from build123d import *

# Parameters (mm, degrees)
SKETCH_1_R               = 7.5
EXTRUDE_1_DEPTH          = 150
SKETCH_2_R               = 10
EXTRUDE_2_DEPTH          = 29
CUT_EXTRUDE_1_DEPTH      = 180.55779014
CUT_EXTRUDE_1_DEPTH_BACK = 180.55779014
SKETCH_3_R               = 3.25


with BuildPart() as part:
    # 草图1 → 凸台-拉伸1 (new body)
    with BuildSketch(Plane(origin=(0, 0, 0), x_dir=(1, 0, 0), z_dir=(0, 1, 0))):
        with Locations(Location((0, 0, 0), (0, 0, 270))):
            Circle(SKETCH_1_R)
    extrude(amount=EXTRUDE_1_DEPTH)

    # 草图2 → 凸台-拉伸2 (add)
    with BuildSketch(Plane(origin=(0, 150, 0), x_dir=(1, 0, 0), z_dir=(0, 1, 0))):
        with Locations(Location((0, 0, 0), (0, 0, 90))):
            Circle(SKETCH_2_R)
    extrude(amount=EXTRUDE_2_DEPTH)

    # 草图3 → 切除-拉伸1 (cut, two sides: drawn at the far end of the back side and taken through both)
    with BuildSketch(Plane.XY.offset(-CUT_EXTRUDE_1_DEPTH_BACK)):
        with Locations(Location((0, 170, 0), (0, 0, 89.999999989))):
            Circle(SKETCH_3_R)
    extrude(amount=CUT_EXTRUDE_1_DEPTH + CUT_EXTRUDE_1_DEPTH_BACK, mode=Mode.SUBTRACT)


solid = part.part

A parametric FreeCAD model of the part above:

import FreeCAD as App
import Part
import Sketcher

V = App.Vector

doc = App.newDocument("Part")
params = doc.addObject("Spreadsheet::Sheet", "Params")
for row, (alias, value) in enumerate([
    ("sketch1_diameter", "15 mm"),
    ("pad1_length", "150 mm"),
    ("sketch2_diameter", "20 mm"),
    ("pad2_length", "29 mm"),
    ("sketch3_diameter", "6.5 mm"),
], start=1):
    params.set(f"A{row}", alias)
    params.set(f"B{row}", "=" + value)
    params.setAlias(f"B{row}", alias)

body = doc.addObject("PartDesign::Body", "Body")

# Sketch on XZ plane
sketch1 = doc.addObject("Sketcher::SketchObject", "Sketch")
body.addObject(sketch1)
sketch1.AttachmentSupport = (doc.XZ_Plane, [""])
sketch1.MapMode = "FlatFace"
sketch1.addGeometry(Part.Circle(V(0, 0, 0), V(0, 0, 1), 7.5), False)
sketch1.addConstraint([
    Sketcher.Constraint("Coincident", 0, 3, -1, 1),
    Sketcher.Constraint("Diameter", 0, 15.0),
])
sketch1.setExpression("Constraints[1]", "Params.sketch1_diameter")
pad1 = doc.addObject("PartDesign::Pad", "Pad")
body.addObject(pad1)
pad1.Profile = sketch1
pad1.setExpression("Length", "Params.pad1_length")
pad1.Reversed = True

# Sketch on XZ plane
sketch2 = doc.addObject("Sketcher::SketchObject", "Sketch001")
body.addObject(sketch2)
sketch2.AttachmentSupport = (doc.XZ_Plane, [""])
sketch2.MapMode = "FlatFace"
sketch2.AttachmentOffset = App.Placement(V(0, 0, -150), App.Rotation())
sketch2.addGeometry(Part.Circle(V(0, 0, 0), V(0, 0, 1), 10), False)
sketch2.addConstraint([
    Sketcher.Constraint("Coincident", 0, 3, -1, 1),
    Sketcher.Constraint("Diameter", 0, 20.0),
])
sketch2.setExpression("Constraints[1]", "Params.sketch2_diameter")
pad2 = doc.addObject("PartDesign::Pad", "Pad001")
body.addObject(pad2)
pad2.Profile = sketch2
pad2.setExpression("Length", "Params.pad2_length")
pad2.Reversed = True

# Sketch on XY plane
sketch3 = doc.addObject("Sketcher::SketchObject", "Sketch002")
body.addObject(sketch3)
sketch3.AttachmentSupport = (doc.XY_Plane, [""])
sketch3.MapMode = "FlatFace"
sketch3.addGeometry(Part.Circle(V(0, 170, 0), V(0, 0, 1), 3.25), False)
sketch3.addConstraint([
    Sketcher.Constraint("PointOnObject", 0, 3, -2),
    Sketcher.Constraint("Diameter", 0, 6.5),
    Sketcher.Constraint("DistanceY", -1, 1, 0, 3, 170.0),
])
sketch3.setExpression("Constraints[1]", "Params.sketch3_diameter")
pocket1 = doc.addObject("PartDesign::Pocket", "Pocket")
body.addObject(pocket1)
pocket1.Profile = sketch3
pocket1.Type = "ThroughAll"
pocket1.Midplane = True

doc.recompute()
